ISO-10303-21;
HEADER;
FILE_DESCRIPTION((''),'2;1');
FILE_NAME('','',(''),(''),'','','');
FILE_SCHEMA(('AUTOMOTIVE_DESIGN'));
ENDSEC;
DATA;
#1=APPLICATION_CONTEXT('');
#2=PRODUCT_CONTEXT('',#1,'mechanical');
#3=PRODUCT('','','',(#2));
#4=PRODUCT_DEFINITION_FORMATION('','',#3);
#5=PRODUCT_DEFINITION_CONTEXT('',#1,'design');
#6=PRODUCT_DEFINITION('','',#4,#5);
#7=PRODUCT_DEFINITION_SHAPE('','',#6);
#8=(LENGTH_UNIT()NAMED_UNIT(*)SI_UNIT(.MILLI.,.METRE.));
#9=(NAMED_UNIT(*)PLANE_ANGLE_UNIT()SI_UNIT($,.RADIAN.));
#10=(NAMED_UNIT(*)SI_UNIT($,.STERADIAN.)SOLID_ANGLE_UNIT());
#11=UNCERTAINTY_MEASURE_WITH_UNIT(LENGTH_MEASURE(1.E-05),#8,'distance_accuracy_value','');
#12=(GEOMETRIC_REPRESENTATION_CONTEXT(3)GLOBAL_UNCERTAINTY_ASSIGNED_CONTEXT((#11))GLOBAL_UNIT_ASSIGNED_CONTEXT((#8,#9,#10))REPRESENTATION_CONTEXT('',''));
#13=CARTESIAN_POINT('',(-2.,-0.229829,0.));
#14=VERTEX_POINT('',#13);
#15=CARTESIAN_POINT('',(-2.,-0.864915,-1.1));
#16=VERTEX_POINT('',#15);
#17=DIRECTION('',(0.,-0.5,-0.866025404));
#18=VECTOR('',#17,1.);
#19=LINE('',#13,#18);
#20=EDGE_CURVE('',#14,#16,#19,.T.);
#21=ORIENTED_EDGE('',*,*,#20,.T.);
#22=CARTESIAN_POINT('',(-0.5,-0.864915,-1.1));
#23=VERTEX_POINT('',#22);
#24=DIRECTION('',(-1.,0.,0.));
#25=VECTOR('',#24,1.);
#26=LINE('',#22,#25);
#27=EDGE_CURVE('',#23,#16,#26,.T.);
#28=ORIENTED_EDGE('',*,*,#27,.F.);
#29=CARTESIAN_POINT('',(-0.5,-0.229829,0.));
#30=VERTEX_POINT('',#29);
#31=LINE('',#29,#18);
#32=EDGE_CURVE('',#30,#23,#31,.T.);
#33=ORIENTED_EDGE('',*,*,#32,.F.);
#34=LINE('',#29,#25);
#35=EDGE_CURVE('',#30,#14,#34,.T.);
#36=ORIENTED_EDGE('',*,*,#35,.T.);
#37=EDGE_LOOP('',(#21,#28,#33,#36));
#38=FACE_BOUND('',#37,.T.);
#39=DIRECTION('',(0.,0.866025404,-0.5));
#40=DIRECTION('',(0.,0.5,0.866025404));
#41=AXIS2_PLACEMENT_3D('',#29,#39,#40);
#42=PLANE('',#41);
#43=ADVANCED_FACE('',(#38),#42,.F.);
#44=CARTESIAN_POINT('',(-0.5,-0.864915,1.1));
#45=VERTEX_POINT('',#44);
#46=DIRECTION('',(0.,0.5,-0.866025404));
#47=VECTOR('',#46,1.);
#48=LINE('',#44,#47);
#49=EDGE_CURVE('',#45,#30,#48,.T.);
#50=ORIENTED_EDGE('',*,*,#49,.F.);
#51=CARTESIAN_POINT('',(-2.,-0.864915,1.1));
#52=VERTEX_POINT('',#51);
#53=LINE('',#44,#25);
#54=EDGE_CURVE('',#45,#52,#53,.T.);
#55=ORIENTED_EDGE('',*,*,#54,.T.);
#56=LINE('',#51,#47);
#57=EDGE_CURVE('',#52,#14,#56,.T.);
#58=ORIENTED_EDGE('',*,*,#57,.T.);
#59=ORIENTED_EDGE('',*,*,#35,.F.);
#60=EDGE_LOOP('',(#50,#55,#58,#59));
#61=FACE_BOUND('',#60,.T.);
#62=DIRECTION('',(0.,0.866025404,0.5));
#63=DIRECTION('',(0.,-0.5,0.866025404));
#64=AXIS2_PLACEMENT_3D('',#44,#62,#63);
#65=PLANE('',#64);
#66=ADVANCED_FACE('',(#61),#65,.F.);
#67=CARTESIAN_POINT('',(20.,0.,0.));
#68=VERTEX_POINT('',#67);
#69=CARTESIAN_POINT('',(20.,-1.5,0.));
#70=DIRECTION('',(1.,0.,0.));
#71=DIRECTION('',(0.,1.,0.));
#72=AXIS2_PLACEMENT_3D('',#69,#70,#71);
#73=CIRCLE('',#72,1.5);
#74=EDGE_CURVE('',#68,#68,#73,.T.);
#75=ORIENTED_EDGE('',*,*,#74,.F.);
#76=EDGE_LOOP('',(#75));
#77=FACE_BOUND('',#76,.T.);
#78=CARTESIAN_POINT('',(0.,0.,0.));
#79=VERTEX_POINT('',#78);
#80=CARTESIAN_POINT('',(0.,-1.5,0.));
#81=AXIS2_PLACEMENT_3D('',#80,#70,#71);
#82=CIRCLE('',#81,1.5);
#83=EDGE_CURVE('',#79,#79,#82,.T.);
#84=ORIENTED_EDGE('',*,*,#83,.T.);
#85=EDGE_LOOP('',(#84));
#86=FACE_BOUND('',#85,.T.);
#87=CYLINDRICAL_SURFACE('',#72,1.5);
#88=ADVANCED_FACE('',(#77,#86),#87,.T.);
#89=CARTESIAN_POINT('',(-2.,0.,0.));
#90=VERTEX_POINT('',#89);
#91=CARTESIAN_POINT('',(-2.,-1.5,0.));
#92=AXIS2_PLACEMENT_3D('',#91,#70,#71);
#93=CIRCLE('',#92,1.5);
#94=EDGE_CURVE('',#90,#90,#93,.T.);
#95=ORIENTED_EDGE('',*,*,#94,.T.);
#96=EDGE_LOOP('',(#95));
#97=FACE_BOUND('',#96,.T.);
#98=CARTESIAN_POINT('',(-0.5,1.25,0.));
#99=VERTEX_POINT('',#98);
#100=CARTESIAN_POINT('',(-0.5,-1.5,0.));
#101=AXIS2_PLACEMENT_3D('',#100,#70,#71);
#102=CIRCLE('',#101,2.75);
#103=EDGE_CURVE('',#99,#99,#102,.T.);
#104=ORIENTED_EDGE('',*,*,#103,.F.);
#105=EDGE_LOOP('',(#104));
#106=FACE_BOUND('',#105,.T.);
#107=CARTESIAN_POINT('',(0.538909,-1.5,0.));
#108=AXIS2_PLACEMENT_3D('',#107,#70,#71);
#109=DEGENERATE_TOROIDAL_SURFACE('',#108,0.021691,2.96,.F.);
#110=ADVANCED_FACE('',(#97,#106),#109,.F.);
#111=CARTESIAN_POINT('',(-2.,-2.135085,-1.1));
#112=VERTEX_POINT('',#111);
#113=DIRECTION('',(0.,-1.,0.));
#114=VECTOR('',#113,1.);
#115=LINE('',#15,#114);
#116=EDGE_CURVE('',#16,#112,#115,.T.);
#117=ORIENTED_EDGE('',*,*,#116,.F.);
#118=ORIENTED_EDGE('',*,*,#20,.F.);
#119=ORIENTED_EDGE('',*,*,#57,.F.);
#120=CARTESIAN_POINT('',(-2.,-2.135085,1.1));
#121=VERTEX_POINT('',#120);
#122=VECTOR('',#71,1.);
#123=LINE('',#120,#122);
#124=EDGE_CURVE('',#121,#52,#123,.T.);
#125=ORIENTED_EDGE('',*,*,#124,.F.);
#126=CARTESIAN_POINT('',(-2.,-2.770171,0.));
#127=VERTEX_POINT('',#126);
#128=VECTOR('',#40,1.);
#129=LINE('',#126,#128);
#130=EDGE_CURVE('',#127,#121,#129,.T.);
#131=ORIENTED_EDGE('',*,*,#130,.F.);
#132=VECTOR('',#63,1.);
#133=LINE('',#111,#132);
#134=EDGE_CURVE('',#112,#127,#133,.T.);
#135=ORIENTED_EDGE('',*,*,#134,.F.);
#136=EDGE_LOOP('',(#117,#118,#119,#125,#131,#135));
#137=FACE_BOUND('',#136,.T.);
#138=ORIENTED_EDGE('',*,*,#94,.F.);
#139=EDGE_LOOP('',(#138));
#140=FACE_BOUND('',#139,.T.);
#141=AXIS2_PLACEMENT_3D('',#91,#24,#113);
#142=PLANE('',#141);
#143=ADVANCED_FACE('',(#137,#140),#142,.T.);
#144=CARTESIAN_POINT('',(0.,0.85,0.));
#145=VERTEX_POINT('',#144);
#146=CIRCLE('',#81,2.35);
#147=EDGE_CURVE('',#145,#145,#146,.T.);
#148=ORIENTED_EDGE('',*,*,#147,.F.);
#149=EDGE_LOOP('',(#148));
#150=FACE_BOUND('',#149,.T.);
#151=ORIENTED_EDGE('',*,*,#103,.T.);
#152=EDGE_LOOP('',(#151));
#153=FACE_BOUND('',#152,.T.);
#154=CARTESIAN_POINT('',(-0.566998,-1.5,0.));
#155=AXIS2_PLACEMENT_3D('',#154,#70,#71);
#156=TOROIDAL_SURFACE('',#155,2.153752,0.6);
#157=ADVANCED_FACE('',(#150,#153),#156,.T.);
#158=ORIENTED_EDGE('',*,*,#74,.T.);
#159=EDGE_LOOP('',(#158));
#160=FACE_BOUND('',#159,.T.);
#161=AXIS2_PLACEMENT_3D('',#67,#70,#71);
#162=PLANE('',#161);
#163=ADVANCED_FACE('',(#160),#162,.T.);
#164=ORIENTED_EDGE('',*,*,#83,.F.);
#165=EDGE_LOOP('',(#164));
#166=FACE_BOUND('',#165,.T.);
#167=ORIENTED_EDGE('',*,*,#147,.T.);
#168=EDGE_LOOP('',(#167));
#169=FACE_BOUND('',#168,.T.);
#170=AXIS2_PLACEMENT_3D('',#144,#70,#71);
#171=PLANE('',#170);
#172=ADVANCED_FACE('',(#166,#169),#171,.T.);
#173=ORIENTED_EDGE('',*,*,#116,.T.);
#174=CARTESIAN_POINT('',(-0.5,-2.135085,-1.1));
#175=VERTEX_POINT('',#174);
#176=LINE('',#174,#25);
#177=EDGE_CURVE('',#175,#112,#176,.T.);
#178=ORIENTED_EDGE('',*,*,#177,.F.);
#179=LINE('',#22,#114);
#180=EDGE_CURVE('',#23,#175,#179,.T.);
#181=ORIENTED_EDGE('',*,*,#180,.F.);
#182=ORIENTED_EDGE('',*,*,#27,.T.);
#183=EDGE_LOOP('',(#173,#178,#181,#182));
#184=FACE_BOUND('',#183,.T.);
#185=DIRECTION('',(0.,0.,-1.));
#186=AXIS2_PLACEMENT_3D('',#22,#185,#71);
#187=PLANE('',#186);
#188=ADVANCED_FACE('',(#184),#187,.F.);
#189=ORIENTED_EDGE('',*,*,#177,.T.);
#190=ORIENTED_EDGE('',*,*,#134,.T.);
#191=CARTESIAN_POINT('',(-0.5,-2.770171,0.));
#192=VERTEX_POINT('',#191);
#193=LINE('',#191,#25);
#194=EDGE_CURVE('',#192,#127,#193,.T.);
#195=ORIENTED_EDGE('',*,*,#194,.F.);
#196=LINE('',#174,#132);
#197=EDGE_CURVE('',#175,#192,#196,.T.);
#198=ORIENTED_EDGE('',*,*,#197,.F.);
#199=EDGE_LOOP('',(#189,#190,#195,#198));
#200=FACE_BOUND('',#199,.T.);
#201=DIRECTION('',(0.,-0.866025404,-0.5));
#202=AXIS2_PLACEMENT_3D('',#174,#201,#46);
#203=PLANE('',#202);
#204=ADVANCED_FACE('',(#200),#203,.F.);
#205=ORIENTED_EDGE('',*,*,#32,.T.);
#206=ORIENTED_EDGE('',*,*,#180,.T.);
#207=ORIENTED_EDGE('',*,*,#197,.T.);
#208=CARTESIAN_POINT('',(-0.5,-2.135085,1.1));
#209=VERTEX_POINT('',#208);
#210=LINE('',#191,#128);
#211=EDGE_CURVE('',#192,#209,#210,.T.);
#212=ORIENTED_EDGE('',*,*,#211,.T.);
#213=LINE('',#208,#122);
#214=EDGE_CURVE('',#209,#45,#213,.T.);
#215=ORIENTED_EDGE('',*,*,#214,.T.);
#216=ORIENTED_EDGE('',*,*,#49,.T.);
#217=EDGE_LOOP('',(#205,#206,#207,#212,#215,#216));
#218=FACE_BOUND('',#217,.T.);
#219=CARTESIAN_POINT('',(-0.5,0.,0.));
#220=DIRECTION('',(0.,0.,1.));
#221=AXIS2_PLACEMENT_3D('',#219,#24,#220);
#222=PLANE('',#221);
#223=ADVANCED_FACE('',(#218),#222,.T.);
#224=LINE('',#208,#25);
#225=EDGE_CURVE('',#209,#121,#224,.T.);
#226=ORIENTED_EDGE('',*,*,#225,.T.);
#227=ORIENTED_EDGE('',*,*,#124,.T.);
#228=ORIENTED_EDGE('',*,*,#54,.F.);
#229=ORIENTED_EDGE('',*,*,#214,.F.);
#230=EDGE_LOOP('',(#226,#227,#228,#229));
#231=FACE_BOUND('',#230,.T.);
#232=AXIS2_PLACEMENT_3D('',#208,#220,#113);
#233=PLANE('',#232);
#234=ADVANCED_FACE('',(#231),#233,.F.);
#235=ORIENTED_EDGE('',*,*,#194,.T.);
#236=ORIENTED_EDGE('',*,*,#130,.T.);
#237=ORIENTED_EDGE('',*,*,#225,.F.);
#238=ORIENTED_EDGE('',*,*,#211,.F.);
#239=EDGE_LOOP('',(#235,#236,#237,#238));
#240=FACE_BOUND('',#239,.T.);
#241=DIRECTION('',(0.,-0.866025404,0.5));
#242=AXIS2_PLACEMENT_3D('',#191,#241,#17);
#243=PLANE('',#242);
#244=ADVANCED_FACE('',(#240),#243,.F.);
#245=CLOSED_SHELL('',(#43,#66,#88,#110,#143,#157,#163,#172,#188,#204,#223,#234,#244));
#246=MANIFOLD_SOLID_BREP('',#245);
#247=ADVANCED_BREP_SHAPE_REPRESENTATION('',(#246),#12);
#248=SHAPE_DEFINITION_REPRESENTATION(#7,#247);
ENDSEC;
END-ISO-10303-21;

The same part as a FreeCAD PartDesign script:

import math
import FreeCAD as App
import Part
import Sketcher
Q = App.Units.Quantity


def add_polygon(sketch, points):
    """Adds a closed chain of lines whose ends are joined by coincident constraints."""
    first, n = sketch.GeometryCount, len(points)
    for a, b in zip(points, points[1:] + points[:1]):
        sketch.addGeometry(Part.LineSegment(App.Vector(*a, 0), App.Vector(*b, 0)), False)
    for i in range(n):
        sketch.addConstraint(Sketcher.Constraint("Coincident", first + i, 2, first + (i + 1) % n, 1))

doc = App.newDocument("Part")
body = doc.addObject("PartDesign::Body", "Body")

# Sketch on XY plane
sketch1 = body.newObject("Sketcher::SketchObject", "Sketch")
sketch1.AttachmentSupport = (doc.getObject("XY_Plane"), [""])
sketch1.MapMode = "FlatFace"
sketch1.addGeometry(Part.LineSegment(App.Vector(20, 0, 0), App.Vector(0, 0, 0)), False)
sketch1.addGeometry(Part.LineSegment(App.Vector(0, 0, 0), App.Vector(0, 0.8, 0)), False)
sketch1.addGeometry(Part.ArcOfCircle(Part.Circle(App.Vector(-0.6, 0.7, 0), App.Vector(0, 0, 1), 0.6), math.radians(19), math.radians(84)), False)
sketch1.addGeometry(Part.ArcOfCircle(Part.Circle(App.Vector(0.5, -1.5, 0), App.Vector(0, 0, 1), 3), math.radians(111), math.radians(149)), False)
sketch1.addGeometry(Part.LineSegment(App.Vector(-2, 0, 0), App.Vector(-2, -1.5, 0)), False)
sketch1.addGeometry(Part.LineSegment(App.Vector(-2, -1.5, 0), App.Vector(20, -1.5, 0)), False)
sketch1.addGeometry(Part.LineSegment(App.Vector(20, -1.5, 0), App.Vector(20, 0, 0)), False)
sketch1.addGeometry(Part.LineSegment(App.Vector(20, -1.5, 0), App.Vector(-2, -1.5, 0)), True)  # axis
sketch1.addConstraint(Sketcher.Constraint("Coincident", 0, 2, 1, 1))
sketch1.addConstraint(Sketcher.Constraint("Coincident", 1, 2, 2, 1))
sketch1.addConstraint(Sketcher.Constraint("Coincident", 2, 2, 3, 1))
sketch1.addConstraint(Sketcher.Constraint("Coincident", 3, 2, 4, 1))
sketch1.addConstraint(Sketcher.Constraint("Coincident", 4, 2, 5, 1))
sketch1.addConstraint(Sketcher.Constraint("Coincident", 5, 2, 6, 1))
sketch1.addConstraint(Sketcher.Constraint("Coincident", 6, 2, 0, 1))
sketch1.addConstraint(Sketcher.Constraint("Horizontal", 0))
sketch1.addConstraint(Sketcher.Constraint("Vertical", 1))
sketch1.addConstraint(Sketcher.Constraint("Vertical", 4))
sketch1.addConstraint(Sketcher.Constraint("Horizontal", 5))
sketch1.addConstraint(Sketcher.Constraint("Vertical", 6))
sketch1.addConstraint(Sketcher.Constraint("Horizontal", 7))
sketch1.addConstraint(Sketcher.Constraint("Coincident", 0, 2, -1, 1))
sketch1.addConstraint(Sketcher.Constraint("Coincident", 7, 1, 5, 2))
sketch1.addConstraint(Sketcher.Constraint("PointOnObject", 3, 2, -1))
sketch1.addConstraint(Sketcher.Constraint("Vertical", 3, 2, 7, 2))
sketch1.addConstraint(Sketcher.Constraint("Radius", 2, Q("0.6 mm")))
sketch1.addConstraint(Sketcher.Constraint("DistanceX", 0, 2, 0, 1, Q("20 mm")))
sketch1.addConstraint(Sketcher.Constraint("DistanceX", 5, 1, 5, 2, Q("22 mm")))
sketch1.addConstraint(Sketcher.Constraint("Radius", 3, Q("2.96 mm")))
sketch1.addConstraint(Sketcher.Constraint("DistanceY", 4, 2, 4, 1, Q("1.5 mm")))
sketch1.addConstraint(Sketcher.Constraint("DistanceY", 1, 1, 1, 2, Q("0.85 mm")))
sketch1.addConstraint(Sketcher.Constraint("DistanceX", 2, 2, -1, 1, Q("0.5 mm")))
sketch1.addConstraint(Sketcher.Constraint("DistanceY", 1, 2, 2, 2, Q("0.4 mm")))
revolution = body.newObject("PartDesign::Revolution", "Revolution")
revolution.Profile = sketch1
revolution.ReferenceAxis = (sketch1, ["Axis0"])
revolution.Angle = 360

# Sketch on YZ plane
sketch2 = body.newObject("Sketcher::SketchObject", "Sketch001")
sketch2.AttachmentSupport = (doc.getObject("YZ_Plane"), [""])
sketch2.MapMode = "FlatFace"
sketch2.AttachmentOffset = App.Placement(App.Vector(0, 0, -2), App.Rotation())
add_polygon(sketch2, [(-0.2, 0), (-0.9, -1.1), (-2.1, -1.1), (-2.8, 0), (-2.1, 1.1), (-0.9, 1.1)])  # lines 0-5
sketch2.addConstraint(Sketcher.Constraint("Horizontal", 1))
sketch2.addConstraint(Sketcher.Constraint("Horizontal", 4))
sketch2.addConstraint(Sketcher.Constraint("Symmetric", 1, 2, 3, 2, -1))
sketch2.addConstraint(Sketcher.Constraint("PointOnObject", 2, 2, -1))
sketch2.addConstraint(Sketcher.Constraint("PointOnObject", 5, 2, -1))
sketch2.addConstraint(Sketcher.Constraint("Parallel", 0, 3))
sketch2.addConstraint(Sketcher.Constraint("Parallel", 2, 5))
sketch2.addConstraint(Sketcher.Constraint("Angle", 0, Q("-120 deg")))
sketch2.addConstraint(Sketcher.Constraint("DistanceY", 0, 2, -1, 1, Q("1.1 mm")))
sketch2.addConstraint(Sketcher.Constraint("DistanceX", 1, 2, 1, 1, Q("1.270171 mm")))
sketch2.addConstraint(Sketcher.Constraint("DistanceX", 2, 2, -1, 1, Q("2.770171 mm")))
pocket1 = body.newObject("PartDesign::Pocket", "Pocket")
pocket1.Profile = sketch2
pocket1.Length = 1.5
pocket1.Reversed = True

doc.recompute()
